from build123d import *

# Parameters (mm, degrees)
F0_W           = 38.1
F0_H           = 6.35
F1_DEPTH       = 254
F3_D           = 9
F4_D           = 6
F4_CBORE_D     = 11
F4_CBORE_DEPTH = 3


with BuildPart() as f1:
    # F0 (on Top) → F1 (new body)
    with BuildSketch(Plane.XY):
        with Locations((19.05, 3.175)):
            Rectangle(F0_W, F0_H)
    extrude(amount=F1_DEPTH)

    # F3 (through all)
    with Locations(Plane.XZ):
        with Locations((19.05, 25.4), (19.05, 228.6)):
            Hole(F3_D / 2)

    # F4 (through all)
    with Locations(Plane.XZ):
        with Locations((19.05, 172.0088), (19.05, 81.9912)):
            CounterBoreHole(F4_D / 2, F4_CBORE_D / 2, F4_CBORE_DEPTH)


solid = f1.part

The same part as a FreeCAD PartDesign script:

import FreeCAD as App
import Part
import Sketcher
Q = App.Units.Quantity


def add_polygon(sketch, points):
    """Adds a closed chain of lines whose ends are joined by coincident constraints."""
    first, n = sketch.GeometryCount, len(points)
    for a, b in zip(points, points[1:] + points[:1]):
        sketch.addGeometry(Part.LineSegment(App.Vector(*a, 0), App.Vector(*b, 0)), False)
    for i in range(n):
        sketch.addConstraint(Sketcher.Constraint("Coincident", first + i, 2, first + (i + 1) % n, 1))

doc = App.newDocument("Part")
body = doc.addObject("PartDesign::Body", "Body")

# Sketch on XY plane
sketch1 = body.newObject("Sketcher::SketchObject", "Sketch")
sketch1.AttachmentSupport = (doc.getObject("XY_Plane"), [""])
sketch1.MapMode = "FlatFace"
add_polygon(sketch1, [(0, 6), (0, 0), (38, 0), (38, 6)])  # lines 0-3
sketch1.addConstraint(Sketcher.Constraint("Vertical", 0))
sketch1.addConstraint(Sketcher.Constraint("Horizontal", 1))
sketch1.addConstraint(Sketcher.Constraint("Vertical", 2))
sketch1.addConstraint(Sketcher.Constraint("Horizontal", 3))
sketch1.addConstraint(Sketcher.Constraint("Coincident", 0, 2, -1, 1))
sketch1.addConstraint(Sketcher.Constraint("DistanceX", 1, 1, 1, 2, Q("1.5 in")))
sketch1.addConstraint(Sketcher.Constraint("DistanceY", 0, 2, 0, 1, Q("0.25 in")))
pad1 = body.newObject("PartDesign::Pad", "Pad")
pad1.Profile = sketch1
pad1.Length = Q("10 in")

# Sketch on XZ plane
sketch2 = body.newObject("Sketcher::SketchObject", "Sketch001")
sketch2.AttachmentSupport = (doc.getObject("XZ_Plane"), [""])
sketch2.MapMode = "FlatFace"
sketch2.addGeometry(Part.Circle(App.Vector(19.1, 25.4, 0), App.Vector(0, 0, 1), 4.5), False)
sketch2.addGeometry(Part.Circle(App.Vector(19.1, 228.6, 0), App.Vector(0, 0, 1), 4.5), False)
sketch2.addConstraint(Sketcher.Constraint("Equal", 0, 1))
sketch2.addConstraint(Sketcher.Constraint("Vertical", 0, 3, 1, 3))
sketch2.addConstraint(Sketcher.Constraint("DistanceY", -1, 1, 0, 3, Q("1 in")))
sketch2.addConstraint(Sketcher.Constraint("DistanceY", -1, 1, 1, 3, Q("9 in")))
sketch2.addConstraint(Sketcher.Constraint("Diameter", 0, 9.0))
sketch2.addConstraint(Sketcher.Constraint("DistanceX", -1, 1, 0, 3, Q("0.75 in")))
doc.recompute()
hole = body.newObject("PartDesign::Hole", "Hole")
hole.Profile = sketch2
hole.ThreadType = "None"
hole.Diameter = 9
hole.DepthType = "ThroughAll"

# Sketch on XZ plane
sketch3 = body.newObject("Sketcher::SketchObject", "Sketch002")
sketch3.AttachmentSupport = (doc.getObject("XZ_Plane"), [""])
sketch3.MapMode = "FlatFace"
sketch3.addGeometry(Part.Circle(App.Vector(19.1, 172, 0), App.Vector(0, 0, 1), 3), False)
sketch3.addGeometry(Part.Circle(App.Vector(19.1, 82, 0), App.Vector(0, 0, 1), 3), False)
sketch3.addConstraint(Sketcher.Constraint("Equal", 0, 1))
sketch3.addConstraint(Sketcher.Constraint("Vertical", 0, 3, 1, 3))
sketch3.addConstraint(Sketcher.Constraint("Diameter", 0, 6.0))
sketch3.addConstraint(Sketcher.Constraint("DistanceX", -1, 1, 0, 3, Q("0.75 in")))
sketch3.addConstraint(Sketcher.Constraint("DistanceY", -1, 1, 0, 3, Q("6.772 in")))
sketch3.addConstraint(Sketcher.Constraint("DistanceY", -1, 1, 1, 3, Q("3.228 in")))
doc.recompute()
hole2 = body.newObject("PartDesign::Hole", "Hole001")
hole2.Profile = sketch3
hole2.ThreadType = "None"
hole2.Diameter = 6
hole2.DepthType = "ThroughAll"
hole2.HoleCutType = "Counterbore"
hole2.HoleCutDiameter = 11
hole2.HoleCutDepth = 3

doc.recompute()
